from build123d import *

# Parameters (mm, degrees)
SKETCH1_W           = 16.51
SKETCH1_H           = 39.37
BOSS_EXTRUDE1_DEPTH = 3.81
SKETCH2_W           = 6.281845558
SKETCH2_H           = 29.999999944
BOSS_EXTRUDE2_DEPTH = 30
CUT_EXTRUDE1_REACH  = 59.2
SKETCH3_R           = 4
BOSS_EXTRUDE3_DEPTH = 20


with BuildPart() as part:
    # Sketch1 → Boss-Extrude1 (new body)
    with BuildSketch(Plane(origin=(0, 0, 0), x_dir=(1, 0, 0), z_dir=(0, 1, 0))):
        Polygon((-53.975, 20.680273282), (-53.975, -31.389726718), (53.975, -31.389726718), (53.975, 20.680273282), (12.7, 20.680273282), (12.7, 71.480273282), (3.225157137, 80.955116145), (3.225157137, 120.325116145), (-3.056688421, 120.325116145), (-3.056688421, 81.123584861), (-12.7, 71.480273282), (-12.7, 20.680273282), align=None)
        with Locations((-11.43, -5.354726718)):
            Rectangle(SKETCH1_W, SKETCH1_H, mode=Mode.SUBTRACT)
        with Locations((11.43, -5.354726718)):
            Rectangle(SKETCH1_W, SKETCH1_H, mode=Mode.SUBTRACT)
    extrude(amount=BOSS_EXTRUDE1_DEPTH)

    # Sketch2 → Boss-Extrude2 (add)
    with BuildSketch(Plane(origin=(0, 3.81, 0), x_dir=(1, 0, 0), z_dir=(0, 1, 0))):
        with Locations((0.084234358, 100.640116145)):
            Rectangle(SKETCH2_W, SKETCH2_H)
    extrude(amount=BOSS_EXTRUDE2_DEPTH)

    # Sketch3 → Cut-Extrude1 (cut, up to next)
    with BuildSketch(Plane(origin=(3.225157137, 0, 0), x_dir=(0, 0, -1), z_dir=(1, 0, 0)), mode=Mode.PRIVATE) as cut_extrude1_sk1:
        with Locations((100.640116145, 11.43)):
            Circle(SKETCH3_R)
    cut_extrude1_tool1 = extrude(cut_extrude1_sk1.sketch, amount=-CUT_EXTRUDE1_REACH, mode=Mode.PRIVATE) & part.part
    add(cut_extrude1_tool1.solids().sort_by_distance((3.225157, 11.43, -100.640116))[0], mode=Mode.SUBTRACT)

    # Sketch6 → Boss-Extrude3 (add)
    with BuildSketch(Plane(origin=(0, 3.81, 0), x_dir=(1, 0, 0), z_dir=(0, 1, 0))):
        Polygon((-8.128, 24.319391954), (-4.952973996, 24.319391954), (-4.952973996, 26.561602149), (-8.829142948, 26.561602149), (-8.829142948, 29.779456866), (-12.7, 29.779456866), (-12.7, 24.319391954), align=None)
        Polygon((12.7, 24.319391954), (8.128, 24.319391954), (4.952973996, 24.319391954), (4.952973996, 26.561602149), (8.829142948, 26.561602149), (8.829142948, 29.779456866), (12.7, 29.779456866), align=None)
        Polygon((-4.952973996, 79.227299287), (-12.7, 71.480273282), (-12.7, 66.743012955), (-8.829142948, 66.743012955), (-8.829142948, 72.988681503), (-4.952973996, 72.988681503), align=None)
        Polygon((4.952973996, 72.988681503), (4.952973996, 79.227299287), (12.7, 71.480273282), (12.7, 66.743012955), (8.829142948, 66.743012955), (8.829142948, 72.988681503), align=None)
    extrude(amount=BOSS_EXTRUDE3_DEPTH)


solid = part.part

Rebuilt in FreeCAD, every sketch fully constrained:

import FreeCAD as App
import Part
import Sketcher
Q = App.Units.Quantity


def add_polygon(sketch, points):
    """Adds a closed chain of lines whose ends are joined by coincident constraints."""
    first, n = sketch.GeometryCount, len(points)
    for a, b in zip(points, points[1:] + points[:1]):
        sketch.addGeometry(Part.LineSegment(App.Vector(*a, 0), App.Vector(*b, 0)), False)
    for i in range(n):
        sketch.addConstraint(Sketcher.Constraint("Coincident", first + i, 2, first + (i + 1) % n, 1))

doc = App.newDocument("Part")
body = doc.addObject("PartDesign::Body", "Body")

sketch1 = body.newObject("Sketcher::SketchObject", "Sketch")
sketch1.AttachmentSupport = (doc.getObject("XZ_Plane"), [""])
sketch1.MapMode = "FlatFace"
add_polygon(sketch1, [(-54, -21), (-54, 31), (54, 31), (54, -21), (13, -21), (13, -71), (3, -81), (3, -120), (-3, -120), (-3, -81), (-13, -71), (-13, -21)])
add_polygon(sketch1, [(-3, 25), (-20, 25), (-20, -14), (-3, -14)])
add_polygon(sketch1, [(20, 25), (3, 25), (3, -14), (20, -14)])
sketch1.addConstraint([
    Sketcher.Constraint("Vertical", 0),
    Sketcher.Constraint("Horizontal", 1),
    Sketcher.Constraint("Vertical", 2),
    Sketcher.Constraint("Horizontal", 3),
    Sketcher.Constraint("Vertical", 4),
    Sketcher.Constraint("Vertical", 6),
    Sketcher.Constraint("Horizontal", 7),
    Sketcher.Constraint("Vertical", 8),
    Sketcher.Constraint("Vertical", 10),
    Sketcher.Constraint("Horizontal", 11),
    Sketcher.Constraint("Horizontal", 12),
    Sketcher.Constraint("Vertical", 13),
    Sketcher.Constraint("Horizontal", 14),
    Sketcher.Constraint("Vertical", 15),
    Sketcher.Constraint("Horizontal", 16),
    Sketcher.Constraint("Vertical", 17),
    Sketcher.Constraint("Horizontal", 18),
    Sketcher.Constraint("Vertical", 19),
    Sketcher.Constraint("Symmetric", 4, 2, 9, 2, -2),
    Sketcher.Constraint("Symmetric", 2, 2, 11, 2, -2),
    Sketcher.Constraint("Symmetric", 15, 2, 16, 2, -2),
    Sketcher.Constraint("Symmetric", 13, 2, 18, 2, -2),
    Sketcher.Constraint("Perpendicular", 5, 9),
    Sketcher.Constraint("Equal", 6, 13),
    Sketcher.Constraint("DistanceY", 4, 2, 4, 1, Q("2 in")),
    Sketcher.Constraint("Angle", 5, Q("-135 deg")),
    Sketcher.Constraint("DistanceX", 9, 2, 4, 2, Q("1 in")),
    Sketcher.Constraint("DistanceX", 11, 2, 14, 2, Q("2 in")),
    Sketcher.Constraint("DistanceX", 1, 1, 1, 2, Q("4.25 in")),
    Sketcher.Constraint("DistanceX", 12, 2, 12, 1, Q("0.65 in")),
    Sketcher.Constraint("DistanceY", 0, 1, 0, 2, Q("2.05 in")),
    Sketcher.Constraint("DistanceY", 6, 2, 6, 1, Q("1.55 in")),
    Sketcher.Constraint("DistanceY", 10, 2, 12, 2, Q("1.8 in")),
    Sketcher.Constraint("DistanceY", 8, 1, 8, 2, Q("39.201531 mm")),
    Sketcher.Constraint("Distance", 5, Q("13.399451 mm")),
    Sketcher.Constraint("DistanceY", -1, 1, 0, 2, Q("31.389727 mm")),
])
pad1 = body.newObject("PartDesign::Pad", "Pad")
pad1.Profile = sketch1
pad1.Length = Q("0.15 in")
pad1.Reversed = True

sketch2 = body.newObject("Sketcher::SketchObject", "Sketch001")
sketch2.AttachmentSupport = (doc.getObject("XZ_Plane"), [""])
sketch2.MapMode = "FlatFace"
sketch2.AttachmentOffset = App.Placement(App.Vector(0, 0, -0.15 * 25.4), App.Rotation())
add_polygon(sketch2, [(-3, -116), (-3, -86), (3, -86), (3, -116)])
sketch2.addConstraint([
    Sketcher.Constraint("Vertical", 0),
    Sketcher.Constraint("Horizontal", 1),
    Sketcher.Constraint("Vertical", 2),
    Sketcher.Constraint("Horizontal", 3),
    Sketcher.Constraint("DistanceY", 0, 1, 0, 2, Q("30 mm")),
    Sketcher.Constraint("DistanceX", 1, 1, 1, 2, Q("6.281846 mm")),
    Sketcher.Constraint("DistanceX", 0, 2, -1, 1, Q("3.056688 mm")),
    Sketcher.Constraint("DistanceY", 0, 2, -1, 1, Q("85.640116 mm")),
])
pad2 = body.newObject("PartDesign::Pad", "Pad001")
pad2.Profile = sketch2
pad2.Length = 30
pad2.Reversed = True

sketch3 = body.newObject("Sketcher::SketchObject", "Sketch002")
sketch3.AttachmentSupport = (doc.getObject("YZ_Plane"), [""])
sketch3.MapMode = "FlatFace"
sketch3.AttachmentOffset = App.Placement(App.Vector(0, 0, 3.225157), App.Rotation())
sketch3.addGeometry(Part.Circle(App.Vector(11.4, -100.6, 0), App.Vector(0, 0, 1), 4), False)
sketch3.addConstraint([
    Sketcher.Constraint("Diameter", 0, Q("8 mm")),
    Sketcher.Constraint("DistanceX", -1, 1, 0, 3, Q("0.45 in")),
    Sketcher.Constraint("DistanceY", 0, 3, -1, 1, Q("100.640116 mm")),
])
pocket1 = body.newObject("PartDesign::Pocket", "Pocket")
pocket1.Profile = sketch3
pocket1.Type = "UpToFirst"

sketch4 = body.newObject("Sketcher::SketchObject", "Sketch003")
sketch4.AttachmentSupport = (doc.getObject("XZ_Plane"), [""])
sketch4.MapMode = "FlatFace"
sketch4.AttachmentOffset = App.Placement(App.Vector(0, 0, -0.15 * 25.4), App.Rotation())
add_polygon(sketch4, [(-5, -24.3), (-5, -26.6), (-8.8, -26.6), (-8.8, -29.8), (-12.7, -29.8), (-12.7, -24.3)])
add_polygon(sketch4, [(5, -24.3), (12.7, -24.3), (12.7, -29.8), (8.8, -29.8), (8.8, -26.6), (5, -26.6)])
add_polygon(sketch4, [(-5, -79.2), (-12.7, -71.5), (-12.7, -66.7), (-8.8, -66.7), (-8.8, -73), (-5, -73)])
add_polygon(sketch4, [(5, -79.2), (5, -73), (8.8, -73), (8.8, -66.7), (12.7, -66.7), (12.7, -71.5)])
sketch4.addConstraint([
    Sketcher.Constraint("Vertical", 0),
    Sketcher.Constraint("Horizontal", 1),
    Sketcher.Constraint("Vertical", 2),
    Sketcher.Constraint("Horizontal", 3),
    Sketcher.Constraint("Vertical", 4),
    Sketcher.Constraint("Horizontal", 5),
    Sketcher.Constraint("Horizontal", 6),
    Sketcher.Constraint("Vertical", 7),
    Sketcher.Constraint("Horizontal", 8),
    Sketcher.Constraint("Vertical", 9),
    Sketcher.Constraint("Horizontal", 10),
    Sketcher.Constraint("Vertical", 11),
    Sketcher.Constraint("Vertical", 13),
    Sketcher.Constraint("Horizontal", 14),
    Sketcher.Constraint("Vertical", 15),
    Sketcher.Constraint("Horizontal", 16),
    Sketcher.Constraint("Vertical", 17),
    Sketcher.Constraint("Vertical", 18),
    Sketcher.Constraint("Horizontal", 19),
    Sketcher.Constraint("Vertical", 20),
    Sketcher.Constraint("Horizontal", 21),
    Sketcher.Constraint("Vertical", 22),
    Sketcher.Constraint("Symmetric", 4, 2, 6, 2, -2),
    Sketcher.Constraint("Symmetric", 2, 2, 8, 2, -2),
    Sketcher.Constraint("Symmetric", 0, 2, 10, 2, -2),
    Sketcher.Constraint("Symmetric", 16, 2, 18, 2, -2),
    Sketcher.Constraint("Symmetric", 14, 2, 20, 2, -2),
    Sketcher.Constraint("Symmetric", 12, 2, 22, 2, -2),
    Sketcher.Constraint("Perpendicular", 12, 23),
    Sketcher.Constraint("Horizontal", 17, 2, 23, 2),
    Sketcher.Constraint("Vertical", 4, 2, 12, 2),
    Sketcher.Constraint("Vertical", 2, 2, 14, 2),
    Sketcher.Constraint("Vertical", 5, 2, 16, 2),
    Sketcher.Constraint("DistanceX", 4, 2, 6, 2, Q("1 in")),
    Sketcher.Constraint("DistanceX", 1, 2, 1, 1, Q("3.876169 mm")),
    Sketcher.Constraint("DistanceY", 0, 2, 0, 1, Q("2.24221 mm")),
    Sketcher.Constraint("DistanceY", 13, 1, 13, 2, Q("4.73726 mm")),
    Sketcher.Constraint("DistanceY", 15, 2, 15, 1, Q("6.245669 mm")),
    Sketcher.Constraint("DistanceY", 17, 2, -1, 1, Q("79.227299 mm")),
    Sketcher.Constraint("Distance", 12, Q("10.955949 mm")),
    Sketcher.Constraint("DistanceY", 2, 2, 2, 1, Q("3.217855 mm")),
    Sketcher.Constraint("DistanceY", 4, 2, -1, 1, Q("24.319392 mm")),
])
pad3 = body.newObject("PartDesign::Pad", "Pad002")
pad3.Profile = sketch4
pad3.Length = 20
pad3.Reversed = True

doc.recompute()
